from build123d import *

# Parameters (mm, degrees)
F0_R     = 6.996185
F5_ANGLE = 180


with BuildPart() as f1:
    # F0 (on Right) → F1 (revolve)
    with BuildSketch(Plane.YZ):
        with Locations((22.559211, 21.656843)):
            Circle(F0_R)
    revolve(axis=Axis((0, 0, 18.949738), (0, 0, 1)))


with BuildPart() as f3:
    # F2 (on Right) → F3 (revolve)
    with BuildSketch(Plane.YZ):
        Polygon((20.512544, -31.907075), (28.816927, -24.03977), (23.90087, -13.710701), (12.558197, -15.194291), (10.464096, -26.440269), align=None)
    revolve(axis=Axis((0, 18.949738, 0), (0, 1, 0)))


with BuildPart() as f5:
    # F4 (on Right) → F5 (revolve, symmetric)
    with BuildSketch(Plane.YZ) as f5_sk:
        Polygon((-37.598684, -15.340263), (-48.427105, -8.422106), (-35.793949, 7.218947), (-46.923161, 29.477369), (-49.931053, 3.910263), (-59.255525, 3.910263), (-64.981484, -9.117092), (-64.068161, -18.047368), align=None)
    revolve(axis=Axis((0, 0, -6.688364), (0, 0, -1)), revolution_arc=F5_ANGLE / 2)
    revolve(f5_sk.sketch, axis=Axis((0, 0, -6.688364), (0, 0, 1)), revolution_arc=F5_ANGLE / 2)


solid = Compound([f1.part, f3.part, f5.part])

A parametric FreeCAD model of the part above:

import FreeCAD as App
import Part
import Sketcher

doc = App.newDocument("Part")
body = doc.addObject("PartDesign::Body", "Body")

# Sketch on YZ plane
sketch1 = body.newObject("Sketcher::SketchObject", "Sketch")
sketch1.AttachmentSupport = (doc.getObject("YZ_Plane"), [""])
sketch1.MapMode = "FlatFace"
sketch1.addGeometry(Part.Circle(App.Vector(23, 22, 0), App.Vector(0, 0, 1), 7), False)
sketch1.addConstraint([
    Sketcher.Constraint("Diameter", 0, 13.99237),
    Sketcher.Constraint("DistanceX", -1, 1, 0, 3, 22.559211),
    Sketcher.Constraint("DistanceY", -1, 1, 0, 3, 21.656843),
])
revolution = body.newObject("PartDesign::Revolution", "Revolution")
revolution.Profile = sketch1
revolution.ReferenceAxis = (sketch1, ["V_Axis"])
revolution.Angle = 360
body2 = doc.addObject("PartDesign::Body", "Body001")

# Sketch on YZ plane
sketch2 = body2.newObject("Sketcher::SketchObject", "Sketch001")
sketch2.AttachmentSupport = (doc.getObject("YZ_Plane001"), [""])
sketch2.MapMode = "FlatFace"
sketch2.addGeometry([
    Part.LineSegment(App.Vector(21, -32, 0), App.Vector(29, -24, 0)),  # 0
    Part.LineSegment(App.Vector(29, -24, 0), App.Vector(24, -14, 0)),  # 1
    Part.LineSegment(App.Vector(24, -14, 0), App.Vector(13, -15, 0)),  # 2
    Part.LineSegment(App.Vector(13, -15, 0), App.Vector(10, -26, 0)),  # 3
    Part.LineSegment(App.Vector(10, -26, 0), App.Vector(21, -32, 0)),  # 4
], False)
sketch2.addConstraint([
    Sketcher.Constraint("Coincident", 0, 2, 1, 1),
    Sketcher.Constraint("Coincident", 1, 2, 2, 1),
    Sketcher.Constraint("Coincident", 2, 2, 3, 1),
    Sketcher.Constraint("Coincident", 3, 2, 4, 1),
    Sketcher.Constraint("Coincident", 4, 2, 0, 1),
    Sketcher.Constraint("Equal", 0, 1),
    Sketcher.Constraint("Equal", 1, 2),
    Sketcher.Constraint("Equal", 2, 3),
    Sketcher.Constraint("Equal", 3, 4),
    Sketcher.Constraint("DistanceY", 1, 2, -1, 1, 13.710701),
    Sketcher.Constraint("DistanceX", 3, 2, 2, 2, 2.094101),
    Sketcher.Constraint("DistanceY", 3, 2, 0, 2, 2.400499),
    Sketcher.Constraint("DistanceY", 0, 2, -1, 1, 24.03977),
    Sketcher.Constraint("DistanceX", -1, 1, 1, 2, 23.90087),
    Sketcher.Constraint("DistanceY", 2, 2, -1, 1, 15.194291),
])
revolution2 = body2.newObject("PartDesign::Revolution", "Revolution001")
revolution2.Profile = sketch2
revolution2.ReferenceAxis = (sketch2, ["H_Axis"])
revolution2.Angle = 360
body3 = doc.addObject("PartDesign::Body", "Body002")

# Sketch on YZ plane
sketch3 = body3.newObject("Sketcher::SketchObject", "Sketch002")
sketch3.AttachmentSupport = (doc.getObject("YZ_Plane002"), [""])
sketch3.MapMode = "FlatFace"
sketch3.addGeometry([
    Part.LineSegment(App.Vector(-38, -15, 0), App.Vector(-48, -8, 0)),  # 0
    Part.LineSegment(App.Vector(-48, -8, 0), App.Vector(-36, 7, 0)),  # 1
    Part.LineSegment(App.Vector(-36, 7, 0), App.Vector(-47, 29, 0)),  # 2
    Part.LineSegment(App.Vector(-47, 29, 0), App.Vector(-50, 4, 0)),  # 3
    Part.LineSegment(App.Vector(-50, 4, 0), App.Vector(-59, 4, 0)),  # 4
    Part.LineSegment(App.Vector(-59, 4, 0), App.Vector(-65, -9, 0)),  # 5
    Part.LineSegment(App.Vector(-65, -9, 0), App.Vector(-64, -18, 0)),  # 6
    Part.LineSegment(App.Vector(-64, -18, 0), App.Vector(-38, -15, 0)),  # 7
], False)
sketch3.addConstraint([
    Sketcher.Constraint("Coincident", 0, 2, 1, 1),
    Sketcher.Constraint("Coincident", 1, 2, 2, 1),
    Sketcher.Constraint("Coincident", 2, 2, 3, 1),
    Sketcher.Constraint("Coincident", 3, 2, 4, 1),
    Sketcher.Constraint("Coincident", 4, 2, 5, 1),
    Sketcher.Constraint("Coincident", 5, 2, 6, 1),
    Sketcher.Constraint("Coincident", 6, 2, 7, 1),
    Sketcher.Constraint("Coincident", 7, 2, 0, 1),
    Sketcher.Constraint("Horizontal", 4),
    Sketcher.Constraint("Perpendicular", 6, 7),
    Sketcher.Constraint("Distance", 1, 20.1057),
    Sketcher.Constraint("Distance", 5, 14.2302),
    Sketcher.Constraint("DistanceX", 5, 2, 7, 2, 27.3828),
    Sketcher.Constraint("Distance", 0, 12.849731),
    Sketcher.Constraint("Distance", 6, 8.976858),
    Sketcher.Constraint("Distance", 7, 26.607548),
    Sketcher.Constraint("DistanceX", 4, 2, 4, 1, 9.324472),
    Sketcher.Constraint("DistanceX", 1, 2, -1, 1, 35.793949),
    Sketcher.Constraint("DistanceX", 2, 2, -1, 1, 46.923161),
    Sketcher.Constraint("DistanceY", -1, 1, 2, 2, 29.477369),
    Sketcher.Constraint("DistanceX", 6, 2, -1, 1, 64.068161),
    Sketcher.Constraint("DistanceY", 1, 2, 2, 2, 22.258422),
    Sketcher.Constraint("DistanceX", 3, 2, 0, 2, 1.503948),
    Sketcher.Constraint("DistanceY", 0, 2, 3, 2, 12.332369),
])
revolution3 = body3.newObject("PartDesign::Revolution", "Revolution002")
revolution3.Profile = sketch3
revolution3.ReferenceAxis = (sketch3, ["V_Axis"])
revolution3.Angle = 90
revolution3.Reversed = True

# Sketch on YZ plane
sketch4 = body3.newObject("Sketcher::SketchObject", "Sketch003")
sketch4.AttachmentSupport = (doc.getObject("YZ_Plane002"), [""])
sketch4.MapMode = "FlatFace"
sketch4.addGeometry([
    Part.LineSegment(App.Vector(-38, -15, 0), App.Vector(-48, -8, 0)),  # 0
    Part.LineSegment(App.Vector(-48, -8, 0), App.Vector(-36, 7, 0)),  # 1
    Part.LineSegment(App.Vector(-36, 7, 0), App.Vector(-47, 29, 0)),  # 2
    Part.LineSegment(App.Vector(-47, 29, 0), App.Vector(-50, 4, 0)),  # 3
    Part.LineSegment(App.Vector(-50, 4, 0), App.Vector(-59, 4, 0)),  # 4
    Part.LineSegment(App.Vector(-59, 4, 0), App.Vector(-65, -9, 0)),  # 5
    Part.LineSegment(App.Vector(-65, -9, 0), App.Vector(-64, -18, 0)),  # 6
    Part.LineSegment(App.Vector(-64, -18, 0), App.Vector(-38, -15, 0)),  # 7
], False)
sketch4.addConstraint([
    Sketcher.Constraint("Coincident", 0, 2, 1, 1),
    Sketcher.Constraint("Coincident", 1, 2, 2, 1),
    Sketcher.Constraint("Coincident", 2, 2, 3, 1),
    Sketcher.Constraint("Coincident", 3, 2, 4, 1),
    Sketcher.Constraint("Coincident", 4, 2, 5, 1),
    Sketcher.Constraint("Coincident", 5, 2, 6, 1),
    Sketcher.Constraint("Coincident", 6, 2, 7, 1),
    Sketcher.Constraint("Coincident", 7, 2, 0, 1),
    Sketcher.Constraint("Horizontal", 4),
    Sketcher.Constraint("Perpendicular", 6, 7),
    Sketcher.Constraint("Distance", 1, 20.1057),
    Sketcher.Constraint("Distance", 5, 14.2302),
    Sketcher.Constraint("DistanceX", 5, 2, 7, 2, 27.3828),
    Sketcher.Constraint("Distance", 0, 12.849731),
    Sketcher.Constraint("Distance", 6, 8.976858),
    Sketcher.Constraint("Distance", 7, 26.607548),
    Sketcher.Constraint("DistanceX", 4, 2, 4, 1, 9.324472),
    Sketcher.Constraint("DistanceX", 1, 2, -1, 1, 35.793949),
    Sketcher.Constraint("DistanceX", 2, 2, -1, 1, 46.923161),
    Sketcher.Constraint("DistanceY", -1, 1, 2, 2, 29.477369),
    Sketcher.Constraint("DistanceX", 6, 2, -1, 1, 64.068161),
    Sketcher.Constraint("DistanceY", 1, 2, 2, 2, 22.258422),
    Sketcher.Constraint("DistanceX", 3, 2, 0, 2, 1.503948),
    Sketcher.Constraint("DistanceY", 0, 2, 3, 2, 12.332369),
])
revolution4 = body3.newObject("PartDesign::Revolution", "Revolution003")
revolution4.Profile = sketch4
revolution4.ReferenceAxis = (sketch4, ["V_Axis"])
revolution4.Angle = 90

doc.recompute()
